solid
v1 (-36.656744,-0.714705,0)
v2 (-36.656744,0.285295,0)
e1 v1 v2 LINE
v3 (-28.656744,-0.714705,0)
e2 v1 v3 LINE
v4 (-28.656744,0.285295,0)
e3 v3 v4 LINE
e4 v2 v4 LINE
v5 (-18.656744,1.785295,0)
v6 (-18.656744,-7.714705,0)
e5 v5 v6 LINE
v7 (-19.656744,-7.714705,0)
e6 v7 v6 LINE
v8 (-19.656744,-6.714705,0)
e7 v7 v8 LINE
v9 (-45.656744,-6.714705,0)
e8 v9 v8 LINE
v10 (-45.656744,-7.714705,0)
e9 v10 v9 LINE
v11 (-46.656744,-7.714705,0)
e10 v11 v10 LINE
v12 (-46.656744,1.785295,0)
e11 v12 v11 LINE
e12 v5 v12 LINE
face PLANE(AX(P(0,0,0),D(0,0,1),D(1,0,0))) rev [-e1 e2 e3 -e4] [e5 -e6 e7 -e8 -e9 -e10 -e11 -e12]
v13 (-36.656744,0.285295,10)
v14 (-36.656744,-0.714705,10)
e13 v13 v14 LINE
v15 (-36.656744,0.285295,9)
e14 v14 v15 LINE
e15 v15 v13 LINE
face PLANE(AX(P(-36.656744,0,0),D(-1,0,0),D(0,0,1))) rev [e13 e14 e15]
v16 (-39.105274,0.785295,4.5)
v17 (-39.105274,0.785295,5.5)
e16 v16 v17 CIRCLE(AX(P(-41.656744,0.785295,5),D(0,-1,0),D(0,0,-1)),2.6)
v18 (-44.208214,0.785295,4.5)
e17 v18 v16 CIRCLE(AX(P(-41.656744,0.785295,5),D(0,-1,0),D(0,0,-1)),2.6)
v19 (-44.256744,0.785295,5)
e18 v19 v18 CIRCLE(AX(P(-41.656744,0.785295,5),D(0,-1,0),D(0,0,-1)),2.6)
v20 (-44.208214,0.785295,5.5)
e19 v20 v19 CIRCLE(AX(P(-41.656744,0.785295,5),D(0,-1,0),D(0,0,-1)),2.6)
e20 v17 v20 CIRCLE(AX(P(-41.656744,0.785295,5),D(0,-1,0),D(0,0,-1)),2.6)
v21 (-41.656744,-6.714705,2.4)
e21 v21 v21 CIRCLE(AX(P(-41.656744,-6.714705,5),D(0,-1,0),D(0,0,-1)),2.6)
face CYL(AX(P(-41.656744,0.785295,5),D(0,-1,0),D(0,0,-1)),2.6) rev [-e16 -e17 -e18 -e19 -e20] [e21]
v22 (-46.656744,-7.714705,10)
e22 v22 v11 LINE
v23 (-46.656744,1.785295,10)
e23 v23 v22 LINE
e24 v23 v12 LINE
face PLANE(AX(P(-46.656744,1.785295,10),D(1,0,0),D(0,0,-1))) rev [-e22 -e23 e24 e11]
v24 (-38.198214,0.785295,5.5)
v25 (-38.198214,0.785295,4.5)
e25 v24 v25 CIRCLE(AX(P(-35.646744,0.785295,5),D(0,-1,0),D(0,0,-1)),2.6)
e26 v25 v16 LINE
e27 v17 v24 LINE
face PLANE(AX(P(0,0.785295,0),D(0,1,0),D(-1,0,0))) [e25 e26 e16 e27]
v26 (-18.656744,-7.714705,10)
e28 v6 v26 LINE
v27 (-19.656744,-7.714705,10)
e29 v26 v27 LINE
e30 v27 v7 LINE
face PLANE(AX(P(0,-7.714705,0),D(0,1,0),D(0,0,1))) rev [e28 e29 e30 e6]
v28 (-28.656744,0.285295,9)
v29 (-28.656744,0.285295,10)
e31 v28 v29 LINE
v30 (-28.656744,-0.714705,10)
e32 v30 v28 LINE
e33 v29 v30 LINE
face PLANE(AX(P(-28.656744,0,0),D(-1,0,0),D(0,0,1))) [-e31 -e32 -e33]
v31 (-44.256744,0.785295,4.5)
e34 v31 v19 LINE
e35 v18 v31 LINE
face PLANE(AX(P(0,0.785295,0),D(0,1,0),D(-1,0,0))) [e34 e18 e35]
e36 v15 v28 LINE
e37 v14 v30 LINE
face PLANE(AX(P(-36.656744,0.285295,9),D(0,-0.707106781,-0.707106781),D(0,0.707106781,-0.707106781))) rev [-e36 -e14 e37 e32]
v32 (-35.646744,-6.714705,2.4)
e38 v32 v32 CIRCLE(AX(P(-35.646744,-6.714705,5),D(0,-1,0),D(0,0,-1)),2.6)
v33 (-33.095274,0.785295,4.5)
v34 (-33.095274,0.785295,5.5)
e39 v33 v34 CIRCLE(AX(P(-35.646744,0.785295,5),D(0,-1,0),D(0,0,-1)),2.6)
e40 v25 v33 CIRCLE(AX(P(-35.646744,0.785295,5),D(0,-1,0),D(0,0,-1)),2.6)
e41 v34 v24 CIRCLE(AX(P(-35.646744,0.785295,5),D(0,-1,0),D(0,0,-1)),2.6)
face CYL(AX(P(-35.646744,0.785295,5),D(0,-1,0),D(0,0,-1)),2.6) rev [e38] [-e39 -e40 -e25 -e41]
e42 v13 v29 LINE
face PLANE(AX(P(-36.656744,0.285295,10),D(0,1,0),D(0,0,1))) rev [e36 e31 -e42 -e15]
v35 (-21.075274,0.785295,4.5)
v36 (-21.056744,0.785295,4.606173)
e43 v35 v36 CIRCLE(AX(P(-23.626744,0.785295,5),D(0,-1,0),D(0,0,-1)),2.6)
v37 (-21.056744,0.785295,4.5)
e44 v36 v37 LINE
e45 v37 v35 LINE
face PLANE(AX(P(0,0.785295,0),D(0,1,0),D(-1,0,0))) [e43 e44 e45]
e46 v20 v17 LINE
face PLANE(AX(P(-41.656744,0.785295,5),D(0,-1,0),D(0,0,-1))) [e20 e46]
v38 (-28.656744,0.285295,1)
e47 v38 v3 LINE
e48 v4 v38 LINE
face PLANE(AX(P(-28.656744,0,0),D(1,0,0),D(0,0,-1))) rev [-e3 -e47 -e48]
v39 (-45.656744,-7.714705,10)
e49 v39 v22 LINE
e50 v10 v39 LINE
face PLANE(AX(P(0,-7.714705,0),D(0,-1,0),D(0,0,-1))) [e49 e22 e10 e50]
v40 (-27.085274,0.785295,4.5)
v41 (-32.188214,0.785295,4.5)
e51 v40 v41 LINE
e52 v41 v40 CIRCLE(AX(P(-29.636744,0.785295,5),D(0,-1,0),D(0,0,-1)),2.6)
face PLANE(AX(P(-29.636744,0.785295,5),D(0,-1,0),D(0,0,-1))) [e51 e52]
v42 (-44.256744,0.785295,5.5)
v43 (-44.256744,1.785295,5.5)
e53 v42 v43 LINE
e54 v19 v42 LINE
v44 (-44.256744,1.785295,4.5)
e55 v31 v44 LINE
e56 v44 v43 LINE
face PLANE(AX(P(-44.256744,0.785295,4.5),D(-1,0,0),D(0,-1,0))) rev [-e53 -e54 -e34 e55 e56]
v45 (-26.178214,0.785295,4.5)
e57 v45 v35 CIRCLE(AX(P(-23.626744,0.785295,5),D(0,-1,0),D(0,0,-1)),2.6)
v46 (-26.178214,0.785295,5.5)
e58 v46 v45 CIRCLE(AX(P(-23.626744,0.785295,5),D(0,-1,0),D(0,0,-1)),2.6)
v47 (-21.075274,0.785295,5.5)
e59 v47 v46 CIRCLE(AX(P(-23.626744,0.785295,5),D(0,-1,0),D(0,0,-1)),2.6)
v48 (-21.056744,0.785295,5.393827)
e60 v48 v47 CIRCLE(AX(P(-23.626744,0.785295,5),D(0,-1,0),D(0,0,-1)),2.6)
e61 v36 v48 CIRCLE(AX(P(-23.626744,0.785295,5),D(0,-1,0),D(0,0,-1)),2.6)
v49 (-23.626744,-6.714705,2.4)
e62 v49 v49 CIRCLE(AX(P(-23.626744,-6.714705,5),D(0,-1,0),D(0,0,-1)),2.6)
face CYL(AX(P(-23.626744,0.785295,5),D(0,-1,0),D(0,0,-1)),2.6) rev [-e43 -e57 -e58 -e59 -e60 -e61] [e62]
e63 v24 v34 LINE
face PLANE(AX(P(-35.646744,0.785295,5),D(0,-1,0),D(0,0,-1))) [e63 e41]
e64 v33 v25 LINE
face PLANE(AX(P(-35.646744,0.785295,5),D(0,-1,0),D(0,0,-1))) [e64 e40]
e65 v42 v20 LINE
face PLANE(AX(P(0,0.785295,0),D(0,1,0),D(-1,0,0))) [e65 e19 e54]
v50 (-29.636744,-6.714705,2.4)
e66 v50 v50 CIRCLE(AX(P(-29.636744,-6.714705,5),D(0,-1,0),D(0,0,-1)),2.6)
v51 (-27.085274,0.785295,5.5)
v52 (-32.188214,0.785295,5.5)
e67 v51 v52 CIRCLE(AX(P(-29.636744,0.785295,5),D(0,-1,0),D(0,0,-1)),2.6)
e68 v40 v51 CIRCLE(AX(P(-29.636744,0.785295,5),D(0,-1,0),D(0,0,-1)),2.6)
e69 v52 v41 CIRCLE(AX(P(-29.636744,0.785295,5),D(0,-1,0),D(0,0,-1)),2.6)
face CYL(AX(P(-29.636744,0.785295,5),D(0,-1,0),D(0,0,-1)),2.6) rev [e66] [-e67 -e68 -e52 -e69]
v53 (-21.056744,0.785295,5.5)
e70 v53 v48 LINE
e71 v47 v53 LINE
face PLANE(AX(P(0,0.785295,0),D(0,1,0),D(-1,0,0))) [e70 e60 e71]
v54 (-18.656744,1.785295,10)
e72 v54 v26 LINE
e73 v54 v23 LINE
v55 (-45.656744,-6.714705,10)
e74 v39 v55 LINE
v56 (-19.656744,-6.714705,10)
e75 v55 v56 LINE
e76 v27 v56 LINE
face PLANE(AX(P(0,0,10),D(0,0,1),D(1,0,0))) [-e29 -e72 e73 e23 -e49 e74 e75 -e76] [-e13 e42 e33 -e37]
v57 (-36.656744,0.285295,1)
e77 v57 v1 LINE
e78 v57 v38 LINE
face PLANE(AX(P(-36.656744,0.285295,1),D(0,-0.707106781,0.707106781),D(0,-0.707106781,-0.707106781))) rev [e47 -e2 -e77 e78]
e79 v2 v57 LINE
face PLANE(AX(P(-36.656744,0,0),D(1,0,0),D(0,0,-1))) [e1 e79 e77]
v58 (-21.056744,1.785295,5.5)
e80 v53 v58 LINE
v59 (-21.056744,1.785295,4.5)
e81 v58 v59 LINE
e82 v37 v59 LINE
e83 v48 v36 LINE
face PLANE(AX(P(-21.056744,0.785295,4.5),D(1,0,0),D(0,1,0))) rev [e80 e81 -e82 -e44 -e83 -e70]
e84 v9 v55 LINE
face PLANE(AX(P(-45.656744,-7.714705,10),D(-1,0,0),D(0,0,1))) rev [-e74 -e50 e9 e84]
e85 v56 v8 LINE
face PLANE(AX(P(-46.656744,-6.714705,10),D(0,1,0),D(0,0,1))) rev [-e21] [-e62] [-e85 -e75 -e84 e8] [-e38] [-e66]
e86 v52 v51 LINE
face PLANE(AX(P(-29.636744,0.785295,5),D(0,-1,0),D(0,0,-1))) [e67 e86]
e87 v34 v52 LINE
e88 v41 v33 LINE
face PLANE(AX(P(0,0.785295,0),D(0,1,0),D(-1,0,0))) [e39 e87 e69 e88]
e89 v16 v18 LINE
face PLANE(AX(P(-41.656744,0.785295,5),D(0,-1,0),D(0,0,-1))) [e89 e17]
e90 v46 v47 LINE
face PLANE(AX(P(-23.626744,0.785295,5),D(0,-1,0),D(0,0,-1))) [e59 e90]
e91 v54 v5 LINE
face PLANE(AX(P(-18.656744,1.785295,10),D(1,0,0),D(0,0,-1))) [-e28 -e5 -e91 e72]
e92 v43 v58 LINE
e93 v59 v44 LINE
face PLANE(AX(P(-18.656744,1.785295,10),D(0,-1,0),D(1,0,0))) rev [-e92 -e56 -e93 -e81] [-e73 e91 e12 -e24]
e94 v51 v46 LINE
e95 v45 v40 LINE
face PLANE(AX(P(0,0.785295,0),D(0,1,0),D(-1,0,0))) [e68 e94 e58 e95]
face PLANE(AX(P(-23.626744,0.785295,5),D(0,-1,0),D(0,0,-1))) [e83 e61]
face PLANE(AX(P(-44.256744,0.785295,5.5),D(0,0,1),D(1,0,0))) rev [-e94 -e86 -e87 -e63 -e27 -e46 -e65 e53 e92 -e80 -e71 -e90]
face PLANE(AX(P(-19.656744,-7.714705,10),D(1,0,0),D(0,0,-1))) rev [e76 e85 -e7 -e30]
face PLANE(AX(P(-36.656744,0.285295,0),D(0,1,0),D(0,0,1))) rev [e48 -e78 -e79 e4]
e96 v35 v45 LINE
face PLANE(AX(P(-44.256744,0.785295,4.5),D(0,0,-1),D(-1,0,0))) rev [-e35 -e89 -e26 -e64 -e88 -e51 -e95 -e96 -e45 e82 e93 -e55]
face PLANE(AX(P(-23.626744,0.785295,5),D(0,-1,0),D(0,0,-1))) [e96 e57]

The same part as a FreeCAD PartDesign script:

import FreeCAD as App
import Part
import Sketcher

V = App.Vector


def add_polygon(sketch, points):
    """Adds a closed chain of lines whose ends are joined by coincident constraints."""
    first, n = sketch.GeometryCount, len(points)
    for a, b in zip(points, points[1:] + points[:1]):
        sketch.addGeometry(Part.LineSegment(App.Vector(*a, 0), App.Vector(*b, 0)), False)
    for i in range(n):
        sketch.addConstraint(Sketcher.Constraint("Coincident", first + i, 2, first + (i + 1) % n, 1))

doc = App.newDocument("Part")
body = doc.addObject("PartDesign::Body", "Body")

sketch1 = doc.addObject("Sketcher::SketchObject", "Sketch")
body.addObject(sketch1)
sketch1.AttachmentSupport = (doc.XY_Plane, [""])
sketch1.MapMode = "FlatFace"
add_polygon(sketch1, [(-46.656744, 1.785295), (-46.656744, -6.714705), (-18.656744, -6.714705), (-18.656744, 1.785295)])
sketch1.addConstraint(Sketcher.Constraint("Vertical", 0))
sketch1.addConstraint(Sketcher.Constraint("Horizontal", 1))
sketch1.addConstraint(Sketcher.Constraint("Vertical", 2))
sketch1.addConstraint(Sketcher.Constraint("Horizontal", 3))
sketch1.addConstraint(Sketcher.Constraint("DistanceX", 1, 1, 1, 2, 28.0))
sketch1.addConstraint(Sketcher.Constraint("DistanceY", 0, 2, 0, 1, 8.5))
sketch1.addConstraint(Sketcher.Constraint("DistanceX", 0, 2, -1, 1, 46.656744))
sketch1.addConstraint(Sketcher.Constraint("DistanceY", 0, 2, -1, 1, 6.714705))
pad1 = doc.addObject("PartDesign::Pad", "Pad")
body.addObject(pad1)
pad1.Profile = sketch1
pad1.Length = 10

sketch2 = doc.addObject("Sketcher::SketchObject", "Sketch001")
body.addObject(sketch2)
sketch2.AttachmentSupport = (doc.XZ_Plane, [""])
sketch2.MapMode = "FlatFace"
sketch2.AttachmentOffset = App.Placement(V(0, 0, 6.714705), App.Rotation())
sketch2.addGeometry(Part.Circle(V(-41.656744, 5, 0), V(0, 0, 1), 2.6), False)
sketch2.addGeometry(Part.Circle(V(-35.646744, 5, 0), V(0, 0, 1), 2.6), False)
sketch2.addGeometry(Part.Circle(V(-29.636744, 5, 0), V(0, 0, 1), 2.6), False)
sketch2.addGeometry(Part.Circle(V(-23.626744, 5, 0), V(0, 0, 1), 2.6), False)
sketch2.addConstraint(Sketcher.Constraint("Equal", 0, 1))
sketch2.addConstraint(Sketcher.Constraint("Equal", 1, 2))
sketch2.addConstraint(Sketcher.Constraint("Equal", 2, 3))
sketch2.addConstraint(Sketcher.Constraint("Horizontal", 0, 3, 1, 3))
sketch2.addConstraint(Sketcher.Constraint("Horizontal", 1, 3, 2, 3))
sketch2.addConstraint(Sketcher.Constraint("Horizontal", 2, 3, 3, 3))
sketch2.addConstraint(Sketcher.Constraint("Diameter", 0, 5.2))
sketch2.addConstraint(Sketcher.Constraint("DistanceY", -1, 1, 0, 3, 5.0))
sketch2.addConstraint(Sketcher.Constraint("DistanceX", 0, 3, 1, 3, 6.01))
sketch2.addConstraint(Sketcher.Constraint("DistanceX", 1, 3, 2, 3, 6.01))
sketch2.addConstraint(Sketcher.Constraint("DistanceX", 2, 3, 3, 3, 6.01))
sketch2.addConstraint(Sketcher.Constraint("DistanceX", 0, 3, -1, 1, 41.656744))
pocket1 = doc.addObject("PartDesign::Pocket", "Pocket")
body.addObject(pocket1)
pocket1.Profile = sketch2
pocket1.Length = 7.5

sketch3 = doc.addObject("Sketcher::SketchObject", "Sketch002")
body.addObject(sketch3)
sketch3.AttachmentSupport = (doc.XZ_Plane, [""])
sketch3.MapMode = "FlatFace"
sketch3.AttachmentOffset = App.Placement(V(0, 0, -1.785295), App.Rotation())
add_polygon(sketch3, [(-44.256744, 4.5), (-44.256744, 5.5), (-21.056744, 5.5), (-21.056744, 4.5)])
sketch3.addConstraint(Sketcher.Constraint("Vertical", 0))
sketch3.addConstraint(Sketcher.Constraint("Horizontal", 1))
sketch3.addConstraint(Sketcher.Constraint("Vertical", 2))
sketch3.addConstraint(Sketcher.Constraint("Horizontal", 3))
sketch3.addConstraint(Sketcher.Constraint("DistanceY", 0, 1, 0, 2, 1.0))
sketch3.addConstraint(Sketcher.Constraint("DistanceX", 1, 1, 1, 2, 23.2))
sketch3.addConstraint(Sketcher.Constraint("DistanceY", -1, 1, 0, 2, 5.5))
sketch3.addConstraint(Sketcher.Constraint("DistanceX", 0, 2, -1, 1, 44.256744))
pocket2 = doc.addObject("PartDesign::Pocket", "Pocket001")
body.addObject(pocket2)
pocket2.Profile = sketch3
pocket2.Length = 1
pocket2.Reversed = True

sketch4 = doc.addObject("Sketcher::SketchObject", "Sketch003")
body.addObject(sketch4)
sketch4.AttachmentSupport = (doc.XZ_Plane, [""])
sketch4.MapMode = "FlatFace"
sketch4.AttachmentOffset = App.Placement(V(0, 0, 6.714705), App.Rotation())
add_polygon(sketch4, [(-45.656744, 0), (-45.656744, 10), (-46.656744, 10), (-46.656744, 0)])
add_polygon(sketch4, [(-18.656744, 0), (-18.656744, 10), (-19.656744, 10), (-19.656744, 0)])
sketch4.addConstraint(Sketcher.Constraint("Vertical", 0))
sketch4.addConstraint(Sketcher.Constraint("Horizontal", 1))
sketch4.addConstraint(Sketcher.Constraint("Vertical", 2))
sketch4.addConstraint(Sketcher.Constraint("Horizontal", 3))
sketch4.addConstraint(Sketcher.Constraint("Vertical", 4))
sketch4.addConstraint(Sketcher.Constraint("Horizontal", 5))
sketch4.addConstraint(Sketcher.Constraint("Vertical", 6))
sketch4.addConstraint(Sketcher.Constraint("Horizontal", 7))
sketch4.addConstraint(Sketcher.Constraint("PointOnObject", 2, 2, -1))
sketch4.addConstraint(Sketcher.Constraint("PointOnObject", 6, 2, -1))
sketch4.addConstraint(Sketcher.Constraint("Horizontal", 1, 2, 4, 2))
sketch4.addConstraint(Sketcher.Constraint("Equal", 3, 5))
sketch4.addConstraint(Sketcher.Constraint("DistanceX", 1, 2, 1, 1, 1.0))
sketch4.addConstraint(Sketcher.Constraint("DistanceY", 0, 1, 0, 2, 10.0))
sketch4.addConstraint(Sketcher.Constraint("DistanceX", 0, 2, 4, 2, 27.0))
sketch4.addConstraint(Sketcher.Constraint("DistanceX", 0, 2, -1, 1, 45.656744))
pad2 = doc.addObject("PartDesign::Pad", "Pad001")
body.addObject(pad2)
pad2.Profile = sketch4
pad2.Length = 1

sketch5 = doc.addObject("Sketcher::SketchObject", "Sketch004")
body.addObject(sketch5)
sketch5.AttachmentSupport = (doc.YZ_Plane, [""])
sketch5.MapMode = "FlatFace"
sketch5.AttachmentOffset = App.Placement(V(0, 0, -28.656744), App.Rotation())
add_polygon(sketch5, [(0.285295, 9), (0.285295, 10), (-0.714705, 10)])
add_polygon(sketch5, [(0.285295, 0), (0.285295, 1), (-0.714705, 0)])
sketch5.addConstraint(Sketcher.Constraint("Vertical", 0))
sketch5.addConstraint(Sketcher.Constraint("Horizontal", 1))
sketch5.addConstraint(Sketcher.Constraint("Vertical", 3))
sketch5.addConstraint(Sketcher.Constraint("Horizontal", 5))
sketch5.addConstraint(Sketcher.Constraint("PointOnObject", 4, 2, -1))
sketch5.addConstraint(Sketcher.Constraint("Perpendicular", 2, 4))
sketch5.addConstraint(Sketcher.Constraint("Vertical", 2, 2, 3, 2))
sketch5.addConstraint(Sketcher.Constraint("Vertical", 1, 2, 4, 2))
sketch5.addConstraint(Sketcher.Constraint("Equal", 5, 0))
sketch5.addConstraint(Sketcher.Constraint("DistanceX", 1, 2, 1, 1, 1.0))
sketch5.addConstraint(Sketcher.Constraint("DistanceY", -1, 1, 0, 2, 10.0))
sketch5.addConstraint(Sketcher.Constraint("DistanceX", -1, 1, 0, 2, 0.285295))
pocket3 = doc.addObject("PartDesign::Pocket", "Pocket002")
body.addObject(pocket3)
pocket3.Profile = sketch5
pocket3.Length = 8

doc.recompute()
